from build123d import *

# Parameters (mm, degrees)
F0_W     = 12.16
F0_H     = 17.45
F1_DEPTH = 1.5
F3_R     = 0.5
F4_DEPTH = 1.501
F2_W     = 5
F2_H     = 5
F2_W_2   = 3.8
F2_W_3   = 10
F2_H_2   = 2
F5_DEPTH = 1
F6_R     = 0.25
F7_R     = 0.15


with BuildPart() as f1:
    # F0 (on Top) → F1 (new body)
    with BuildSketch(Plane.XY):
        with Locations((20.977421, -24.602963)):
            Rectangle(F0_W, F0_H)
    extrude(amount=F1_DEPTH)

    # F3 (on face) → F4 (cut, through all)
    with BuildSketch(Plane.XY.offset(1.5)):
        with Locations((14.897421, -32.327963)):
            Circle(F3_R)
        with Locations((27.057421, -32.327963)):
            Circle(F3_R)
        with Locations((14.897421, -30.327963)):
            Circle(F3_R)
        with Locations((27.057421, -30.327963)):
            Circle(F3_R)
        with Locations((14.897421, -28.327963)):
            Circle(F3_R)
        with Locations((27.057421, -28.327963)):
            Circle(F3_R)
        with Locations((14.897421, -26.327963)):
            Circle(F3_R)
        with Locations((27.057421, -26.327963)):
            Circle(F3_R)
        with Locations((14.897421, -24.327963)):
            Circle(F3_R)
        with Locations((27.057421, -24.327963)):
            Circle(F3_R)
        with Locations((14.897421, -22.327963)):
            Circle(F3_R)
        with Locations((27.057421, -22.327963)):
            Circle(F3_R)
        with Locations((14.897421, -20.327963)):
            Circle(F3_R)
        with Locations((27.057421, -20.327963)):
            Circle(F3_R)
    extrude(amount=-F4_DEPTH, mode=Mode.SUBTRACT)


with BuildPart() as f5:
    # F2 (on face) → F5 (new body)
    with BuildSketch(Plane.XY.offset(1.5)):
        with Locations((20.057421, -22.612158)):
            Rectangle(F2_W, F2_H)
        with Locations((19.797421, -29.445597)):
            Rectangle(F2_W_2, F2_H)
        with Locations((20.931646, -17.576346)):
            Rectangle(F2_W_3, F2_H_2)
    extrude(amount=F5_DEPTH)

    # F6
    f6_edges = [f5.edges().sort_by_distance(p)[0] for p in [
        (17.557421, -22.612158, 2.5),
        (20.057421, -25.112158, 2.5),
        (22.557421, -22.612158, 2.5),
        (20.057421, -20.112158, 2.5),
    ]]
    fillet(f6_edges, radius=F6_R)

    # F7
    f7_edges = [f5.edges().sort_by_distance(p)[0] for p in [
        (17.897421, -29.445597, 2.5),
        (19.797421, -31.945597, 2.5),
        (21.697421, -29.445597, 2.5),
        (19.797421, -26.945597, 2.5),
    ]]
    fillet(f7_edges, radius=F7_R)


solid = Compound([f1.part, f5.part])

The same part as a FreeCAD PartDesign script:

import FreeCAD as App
import Part
import Sketcher

V = App.Vector


def edges_at(feature, points):
    """Names of the edges that pass closest to the given points."""
    edges = feature.Shape.Edges
    near = lambda p: min(range(len(edges)), key=lambda i: edges[i].distToShape(Part.Vertex(*p))[0])
    return sorted({f"Edge{near(p) + 1}" for p in points})


def add_polygon(sketch, points):
    """Adds a closed chain of lines whose ends are joined by coincident constraints."""
    first, n = sketch.GeometryCount, len(points)
    for a, b in zip(points, points[1:] + points[:1]):
        sketch.addGeometry(Part.LineSegment(App.Vector(*a, 0), App.Vector(*b, 0)), False)
    for i in range(n):
        sketch.addConstraint(Sketcher.Constraint("Coincident", first + i, 2, first + (i + 1) % n, 1))

doc = App.newDocument("Part")
params = doc.addObject("Spreadsheet::Sheet", "Params")
for row, (alias, value) in enumerate([
    ("sketch1_width", "12.16 mm"),
    ("sketch1_height", "17.45 mm"),
    ("pad1_length", "1.5 mm"),
    ("sketch2_diameter", "1 mm"),
    ("sketch3_width", "5 mm"),
    ("sketch3_width2", "10 mm"),
    ("sketch3_height", "2 mm"),
    ("sketch3_width3", "3.8 mm"),
    ("pad2_length", "1 mm"),
    ("fillet_radius", "0.25 mm"),
    ("fillet2_radius", "0.15 mm"),
], start=1):
    params.set(f"A{row}", alias)
    params.set(f"B{row}", "=" + value)
    params.setAlias(f"B{row}", alias)

body = doc.addObject("PartDesign::Body", "Body")

# Sketch on XY plane
sketch1 = body.newObject("Sketcher::SketchObject", "Sketch")
sketch1.AttachmentSupport = (doc.getObject("XY_Plane"), [""])
sketch1.MapMode = "FlatFace"
add_polygon(sketch1, [(14.897421, -15.877963), (14.897421, -33.327963), (27.057421, -33.327963), (27.057421, -15.877963)])  # lines 0-3
sketch1.addConstraint(Sketcher.Constraint("Vertical", 0))
sketch1.addConstraint(Sketcher.Constraint("Horizontal", 1))
sketch1.addConstraint(Sketcher.Constraint("Vertical", 2))
sketch1.addConstraint(Sketcher.Constraint("Horizontal", 3))
sketch1.addConstraint(Sketcher.Constraint("DistanceX", 1, 1, 1, 2, 12.16))
sketch1.addConstraint(Sketcher.Constraint("DistanceY", 0, 2, 0, 1, 17.45))
sketch1.addConstraint(Sketcher.Constraint("DistanceX", -1, 1, 0, 2, 14.897421))
sketch1.addConstraint(Sketcher.Constraint("DistanceY", 0, 2, -1, 1, 33.327963))
sketch1.setExpression("Constraints[8]", "Params.sketch1_width")
sketch1.setExpression("Constraints[9]", "Params.sketch1_height")
pad1 = body.newObject("PartDesign::Pad", "Pad")
pad1.Profile = sketch1
pad1.setExpression("Length", "Params.pad1_length")

# Sketch on XY plane
sketch2 = body.newObject("Sketcher::SketchObject", "Sketch001")
sketch2.AttachmentSupport = (doc.getObject("XY_Plane"), [""])
sketch2.MapMode = "FlatFace"
sketch2.AttachmentOffset = App.Placement(V(0, 0, 1.5), App.Rotation())
sketch2.addGeometry(Part.Circle(V(14.897421, -32.327963, 0), V(0, 0, 1), 0.5), False)
sketch2.addGeometry(Part.Circle(V(27.057421, -32.327963, 0), V(0, 0, 1), 0.5), False)
sketch2.addGeometry(Part.Circle(V(14.897421, -30.327963, 0), V(0, 0, 1), 0.5), False)
sketch2.addGeometry(Part.Circle(V(27.057421, -30.327963, 0), V(0, 0, 1), 0.5), False)
sketch2.addGeometry(Part.Circle(V(14.897421, -28.327963, 0), V(0, 0, 1), 0.5), False)
sketch2.addGeometry(Part.Circle(V(27.057421, -28.327963, 0), V(0, 0, 1), 0.5), False)
sketch2.addGeometry(Part.Circle(V(14.897421, -26.327963, 0), V(0, 0, 1), 0.5), False)
sketch2.addGeometry(Part.Circle(V(27.057421, -26.327963, 0), V(0, 0, 1), 0.5), False)
sketch2.addGeometry(Part.Circle(V(14.897421, -24.327963, 0), V(0, 0, 1), 0.5), False)
sketch2.addGeometry(Part.Circle(V(27.057421, -24.327963, 0), V(0, 0, 1), 0.5), False)
sketch2.addGeometry(Part.Circle(V(14.897421, -22.327963, 0), V(0, 0, 1), 0.5), False)
sketch2.addGeometry(Part.Circle(V(27.057421, -22.327963, 0), V(0, 0, 1), 0.5), False)
sketch2.addGeometry(Part.Circle(V(14.897421, -20.327963, 0), V(0, 0, 1), 0.5), False)
sketch2.addGeometry(Part.Circle(V(27.057421, -20.327963, 0), V(0, 0, 1), 0.5), False)
sketch2.addConstraint(Sketcher.Constraint("Equal", 0, 1))
sketch2.addConstraint(Sketcher.Constraint("Equal", 1, 2))
sketch2.addConstraint(Sketcher.Constraint("Equal", 2, 3))
sketch2.addConstraint(Sketcher.Constraint("Equal", 3, 4))
sketch2.addConstraint(Sketcher.Constraint("Equal", 4, 5))
sketch2.addConstraint(Sketcher.Constraint("Equal", 5, 6))
sketch2.addConstraint(Sketcher.Constraint("Equal", 6, 7))
sketch2.addConstraint(Sketcher.Constraint("Equal", 7, 8))
sketch2.addConstraint(Sketcher.Constraint("Equal", 8, 9))
sketch2.addConstraint(Sketcher.Constraint("Equal", 9, 10))
sketch2.addConstraint(Sketcher.Constraint("Equal", 10, 11))
sketch2.addConstraint(Sketcher.Constraint("Equal", 11, 12))
sketch2.addConstraint(Sketcher.Constraint("Equal", 12, 13))
sketch2.addConstraint(Sketcher.Constraint("Horizontal", 0, 3, 1, 3))
sketch2.addConstraint(Sketcher.Constraint("Horizontal", 2, 3, 3, 3))
sketch2.addConstraint(Sketcher.Constraint("Horizontal", 4, 3, 5, 3))
sketch2.addConstraint(Sketcher.Constraint("Horizontal", 6, 3, 7, 3))
sketch2.addConstraint(Sketcher.Constraint("Horizontal", 8, 3, 9, 3))
sketch2.addConstraint(Sketcher.Constraint("Horizontal", 10, 3, 11, 3))
sketch2.addConstraint(Sketcher.Constraint("Horizontal", 12, 3, 13, 3))
sketch2.addConstraint(Sketcher.Constraint("Vertical", 0, 3, 2, 3))
sketch2.addConstraint(Sketcher.Constraint("Vertical", 1, 3, 3, 3))
sketch2.addConstraint(Sketcher.Constraint("Vertical", 2, 3, 4, 3))
sketch2.addConstraint(Sketcher.Constraint("Vertical", 3, 3, 5, 3))
sketch2.addConstraint(Sketcher.Constraint("Vertical", 4, 3, 6, 3))
sketch2.addConstraint(Sketcher.Constraint("Vertical", 5, 3, 7, 3))
sketch2.addConstraint(Sketcher.Constraint("Vertical", 6, 3, 8, 3))
sketch2.addConstraint(Sketcher.Constraint("Vertical", 7, 3, 9, 3))
sketch2.addConstraint(Sketcher.Constraint("Vertical", 8, 3, 10, 3))
sketch2.addConstraint(Sketcher.Constraint("Vertical", 9, 3, 11, 3))
sketch2.addConstraint(Sketcher.Constraint("Vertical", 10, 3, 12, 3))
sketch2.addConstraint(Sketcher.Constraint("Vertical", 11, 3, 13, 3))
sketch2.addConstraint(Sketcher.Constraint("Diameter", 0, 1.0))
sketch2.addConstraint(Sketcher.Constraint("DistanceY", 0, 3, 2, 3, 2.0))
sketch2.addConstraint(Sketcher.Constraint("DistanceY", 2, 3, 4, 3, 2.0))
sketch2.addConstraint(Sketcher.Constraint("DistanceY", 4, 3, 6, 3, 2.0))
sketch2.addConstraint(Sketcher.Constraint("DistanceY", 6, 3, 8, 3, 2.0))
sketch2.addConstraint(Sketcher.Constraint("DistanceY", 8, 3, 10, 3, 2.0))
sketch2.addConstraint(Sketcher.Constraint("DistanceY", 10, 3, 12, 3, 2.0))
sketch2.addConstraint(Sketcher.Constraint("DistanceX", 0, 3, 1, 3, 12.16))
sketch2.addConstraint(Sketcher.Constraint("DistanceX", -1, 1, 0, 3, 14.897421))
sketch2.addConstraint(Sketcher.Constraint("DistanceY", 0, 3, -1, 1, 32.327963))
sketch2.setExpression("Constraints[32]", "Params.sketch2_diameter")
pocket1 = body.newObject("PartDesign::Pocket", "Pocket")
pocket1.Profile = sketch2
pocket1.Type = "ThroughAll"
body2 = doc.addObject("PartDesign::Body", "Body001")
body2.AllowCompound = True

# Sketch on XY plane
sketch3 = body2.newObject("Sketcher::SketchObject", "Sketch002")
sketch3.AttachmentSupport = (doc.getObject("XY_Plane001"), [""])
sketch3.MapMode = "FlatFace"
sketch3.AttachmentOffset = App.Placement(V(0, 0, 1.5), App.Rotation())
add_polygon(sketch3, [(17.557421, -20.112158), (17.557421, -25.112158), (22.557421, -25.112158), (22.557421, -20.112158)])  # lines 0-3
add_polygon(sketch3, [(17.897421, -26.945597), (17.897421, -31.945597), (21.697421, -31.945597), (21.697421, -26.945597)])  # lines 4-7
add_polygon(sketch3, [(15.931646, -16.576346), (15.931646, -18.576346), (25.931646, -18.576346), (25.931646, -16.576346)])  # lines 8-11
sketch3.addConstraint(Sketcher.Constraint("Vertical", 0))
sketch3.addConstraint(Sketcher.Constraint("Horizontal", 1))
sketch3.addConstraint(Sketcher.Constraint("Vertical", 2))
sketch3.addConstraint(Sketcher.Constraint("Horizontal", 3))
sketch3.addConstraint(Sketcher.Constraint("Vertical", 4))
sketch3.addConstraint(Sketcher.Constraint("Horizontal", 5))
sketch3.addConstraint(Sketcher.Constraint("Vertical", 6))
sketch3.addConstraint(Sketcher.Constraint("Horizontal", 7))
sketch3.addConstraint(Sketcher.Constraint("Vertical", 8))
sketch3.addConstraint(Sketcher.Constraint("Horizontal", 9))
sketch3.addConstraint(Sketcher.Constraint("Vertical", 10))
sketch3.addConstraint(Sketcher.Constraint("Horizontal", 11))
sketch3.addConstraint(Sketcher.Constraint("Equal", 3, 0))
sketch3.addConstraint(Sketcher.Constraint("Equal", 2, 4))
sketch3.addConstraint(Sketcher.Constraint("DistanceX", 1, 1, 1, 2, 5.0))
sketch3.addConstraint(Sketcher.Constraint("DistanceX", 9, 1, 9, 2, 10.0))
sketch3.addConstraint(Sketcher.Constraint("DistanceY", 8, 2, 8, 1, 2.0))
sketch3.addConstraint(Sketcher.Constraint("DistanceX", 5, 1, 5, 2, 3.8))
sketch3.addConstraint(Sketcher.Constraint("DistanceX", 0, 2, 4, 2, 0.34))
sketch3.addConstraint(Sketcher.Constraint("DistanceX", -1, 1, 0, 2, 17.557421))
sketch3.addConstraint(Sketcher.Constraint("DistanceY", 0, 2, -1, 1, 25.112158))
sketch3.addConstraint(Sketcher.Constraint("DistanceY", 4, 2, 0, 2, 6.833439))
sketch3.addConstraint(Sketcher.Constraint("DistanceY", 7, 2, 8, 2, 8.369251))
sketch3.addConstraint(Sketcher.Constraint("DistanceX", -1, 1, 8, 2, 15.931646))
sketch3.setExpression("Constraints[26]", "Params.sketch3_width")
sketch3.setExpression("Constraints[27]", "Params.sketch3_width2")
sketch3.setExpression("Constraints[28]", "Params.sketch3_height")
sketch3.setExpression("Constraints[29]", "Params.sketch3_width3")
pad2 = body2.newObject("PartDesign::Pad", "Pad001")
pad2.Profile = sketch3
pad2.setExpression("Length", "Params.pad2_length")
doc.recompute()

fillet = body2.newObject("PartDesign::Fillet", "Fillet")
fillet.Base = (pad2, edges_at(pad2, [
    (17.557, -22.612, 2.5),
    (20.057, -25.112, 2.5),
    (22.557, -22.612, 2.5),
    (20.057, -20.112, 2.5),
]))
fillet.setExpression("Radius", "Params.fillet_radius")
doc.recompute()

fillet2 = body2.newObject("PartDesign::Fillet", "Fillet001")
fillet2.Base = (fillet, edges_at(fillet, [
    (17.897, -29.446, 2.5),
    (19.797, -31.946, 2.5),
    (21.697, -29.446, 2.5),
    (19.797, -26.946, 2.5),
]))
fillet2.setExpression("Radius", "Params.fillet2_radius")

doc.recompute()
